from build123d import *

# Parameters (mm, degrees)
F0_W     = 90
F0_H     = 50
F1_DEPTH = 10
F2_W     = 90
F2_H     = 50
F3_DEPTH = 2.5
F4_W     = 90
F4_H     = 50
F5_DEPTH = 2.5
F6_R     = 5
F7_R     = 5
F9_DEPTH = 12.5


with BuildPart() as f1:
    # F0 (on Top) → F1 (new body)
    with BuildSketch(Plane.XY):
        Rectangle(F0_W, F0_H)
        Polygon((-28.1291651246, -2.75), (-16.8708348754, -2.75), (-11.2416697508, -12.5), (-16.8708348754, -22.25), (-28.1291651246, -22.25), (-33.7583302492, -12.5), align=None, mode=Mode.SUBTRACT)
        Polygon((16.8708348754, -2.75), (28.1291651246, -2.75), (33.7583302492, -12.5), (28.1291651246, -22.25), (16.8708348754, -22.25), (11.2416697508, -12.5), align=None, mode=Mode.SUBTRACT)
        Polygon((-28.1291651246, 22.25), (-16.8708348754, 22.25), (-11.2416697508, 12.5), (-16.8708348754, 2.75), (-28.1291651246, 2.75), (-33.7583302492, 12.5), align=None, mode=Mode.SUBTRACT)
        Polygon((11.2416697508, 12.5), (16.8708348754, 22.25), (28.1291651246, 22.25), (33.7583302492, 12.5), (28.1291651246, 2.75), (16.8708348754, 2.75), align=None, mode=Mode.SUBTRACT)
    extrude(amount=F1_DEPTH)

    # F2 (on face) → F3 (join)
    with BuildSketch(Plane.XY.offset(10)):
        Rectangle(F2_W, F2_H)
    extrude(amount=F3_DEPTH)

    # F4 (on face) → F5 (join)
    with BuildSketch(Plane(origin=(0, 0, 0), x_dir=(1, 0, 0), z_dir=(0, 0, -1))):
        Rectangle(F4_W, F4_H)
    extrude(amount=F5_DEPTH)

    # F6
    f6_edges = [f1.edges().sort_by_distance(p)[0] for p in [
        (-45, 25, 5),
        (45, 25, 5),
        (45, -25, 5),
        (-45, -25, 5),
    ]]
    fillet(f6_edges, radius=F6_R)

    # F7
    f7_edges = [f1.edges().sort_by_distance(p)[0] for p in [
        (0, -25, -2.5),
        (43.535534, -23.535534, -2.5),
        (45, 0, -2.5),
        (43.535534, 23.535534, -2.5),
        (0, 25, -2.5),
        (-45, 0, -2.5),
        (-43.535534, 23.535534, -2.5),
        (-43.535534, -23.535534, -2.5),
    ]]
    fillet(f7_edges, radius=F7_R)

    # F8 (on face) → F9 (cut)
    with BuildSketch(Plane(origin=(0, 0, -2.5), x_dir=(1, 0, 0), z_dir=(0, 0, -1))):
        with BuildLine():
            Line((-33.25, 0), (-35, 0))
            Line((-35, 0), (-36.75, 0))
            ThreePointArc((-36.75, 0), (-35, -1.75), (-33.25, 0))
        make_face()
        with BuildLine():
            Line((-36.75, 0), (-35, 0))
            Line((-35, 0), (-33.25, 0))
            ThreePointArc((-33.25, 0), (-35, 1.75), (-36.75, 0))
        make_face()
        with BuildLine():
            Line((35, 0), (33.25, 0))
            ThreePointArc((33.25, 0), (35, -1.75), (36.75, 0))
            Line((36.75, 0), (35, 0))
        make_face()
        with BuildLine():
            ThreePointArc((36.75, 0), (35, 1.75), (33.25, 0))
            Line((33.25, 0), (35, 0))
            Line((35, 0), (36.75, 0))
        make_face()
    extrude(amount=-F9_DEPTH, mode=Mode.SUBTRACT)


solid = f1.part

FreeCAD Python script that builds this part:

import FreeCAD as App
import Part
import Sketcher
Q = App.Units.Quantity


def edges_at(feature, points):
    """Names of the edges that pass closest to the given points."""
    edges = feature.Shape.Edges
    near = lambda p: min(range(len(edges)), key=lambda i: edges[i].distToShape(Part.Vertex(*p))[0])
    return sorted({f"Edge{near(p) + 1}" for p in points})


def add_polygon(sketch, points):
    """Adds a closed chain of lines whose ends are joined by coincident constraints."""
    first, n = sketch.GeometryCount, len(points)
    for a, b in zip(points, points[1:] + points[:1]):
        sketch.addGeometry(Part.LineSegment(App.Vector(*a, 0), App.Vector(*b, 0)), False)
    for i in range(n):
        sketch.addConstraint(Sketcher.Constraint("Coincident", first + i, 2, first + (i + 1) % n, 1))

doc = App.newDocument("Part")
params = doc.addObject("Spreadsheet::Sheet", "Params")
for row, (alias, value) in enumerate([
    ("sketch1_width", "90 mm"),
    ("sketch1_height", "50 mm"),
    ("pad1_length", "10 mm"),
    ("sketch2_width", "90 mm"),
    ("sketch2_height", "50 mm"),
    ("pad2_length", "2.5 mm"),
    ("sketch3_width", "90 mm"),
    ("sketch3_height", "50 mm"),
    ("pad3_length", "2.5 mm"),
    ("fillet_radius", "5 mm"),
    ("fillet2_radius", "5 mm"),
    ("sketch4_diameter", "3.5 mm"),
    ("pocket1_length", "12.5 mm"),
], start=1):
    params.set(f"A{row}", alias)
    params.set(f"B{row}", "=" + value)
    params.setAlias(f"B{row}", alias)

body = doc.addObject("PartDesign::Body", "Body")

# Sketch on XY plane
sketch1 = body.newObject("Sketcher::SketchObject", "Sketch")
sketch1.AttachmentSupport = (doc.getObject("XY_Plane"), [""])
sketch1.MapMode = "FlatFace"
add_polygon(sketch1, [(-45, 25), (-45, -25), (45, -25), (45, 25)])  # lines 0-3
add_polygon(sketch1, [(-34, -12), (-28, -3), (-17, -3), (-11, -12), (-17, -22), (-28, -22)])  # lines 4-9
add_polygon(sketch1, [(11, -12), (17, -3), (28, -3), (34, -12), (28, -22), (17, -22)])  # lines 10-15
add_polygon(sketch1, [(-34, 12), (-28, 22), (-17, 22), (-11, 12), (-17, 3), (-28, 3)])  # lines 16-21
add_polygon(sketch1, [(17, 3), (11, 12), (17, 22), (28, 22), (34, 12), (28, 3)])  # lines 22-27
sketch1.addConstraint(Sketcher.Constraint("Vertical", 0))
sketch1.addConstraint(Sketcher.Constraint("Horizontal", 1))
sketch1.addConstraint(Sketcher.Constraint("Vertical", 2))
sketch1.addConstraint(Sketcher.Constraint("Horizontal", 3))
sketch1.addConstraint(Sketcher.Constraint("Horizontal", 5))
sketch1.addConstraint(Sketcher.Constraint("Horizontal", 8))
sketch1.addConstraint(Sketcher.Constraint("Horizontal", 11))
sketch1.addConstraint(Sketcher.Constraint("Horizontal", 14))
sketch1.addConstraint(Sketcher.Constraint("Horizontal", 17))
sketch1.addConstraint(Sketcher.Constraint("Horizontal", 20))
sketch1.addConstraint(Sketcher.Constraint("Horizontal", 24))
sketch1.addConstraint(Sketcher.Constraint("Horizontal", 27))
sketch1.addConstraint(Sketcher.Constraint("Symmetric", 0, 2, 2, 2, -1, 1))
sketch1.addConstraint(Sketcher.Constraint("Symmetric", 13, 2, 16, 2, -1, 1))
sketch1.addConstraint(Sketcher.Constraint("Symmetric", 15, 2, 18, 2, -1, 1))
sketch1.addConstraint(Sketcher.Constraint("Symmetric", 10, 2, 19, 2, -1, 1))
sketch1.addConstraint(Sketcher.Constraint("Symmetric", 12, 2, 21, 2, -1, 1))
sketch1.addConstraint(Sketcher.Constraint("Symmetric", 6, 2, 22, 2, -1, 1))
sketch1.addConstraint(Sketcher.Constraint("Symmetric", 7, 2, 23, 2, -1, 1))
sketch1.addConstraint(Sketcher.Constraint("Symmetric", 9, 2, 25, 2, -1, 1))
sketch1.addConstraint(Sketcher.Constraint("Symmetric", 4, 2, 26, 2, -1, 1))
sketch1.addConstraint(Sketcher.Constraint("Symmetric", 5, 2, 10, 2, -2))
sketch1.addConstraint(Sketcher.Constraint("Symmetric", 9, 2, 12, 2, -2))
sketch1.addConstraint(Sketcher.Constraint("Symmetric", 8, 2, 13, 2, -2))
sketch1.addConstraint(Sketcher.Constraint("Symmetric", 6, 2, 15, 2, -2))
sketch1.addConstraint(Sketcher.Constraint("Parallel", 4, 7))
sketch1.addConstraint(Sketcher.Constraint("Parallel", 6, 9))
sketch1.addConstraint(Sketcher.Constraint("Parallel", 7, 10))
sketch1.addConstraint(Sketcher.Constraint("Parallel", 9, 12))
sketch1.addConstraint(Sketcher.Constraint("Parallel", 12, 15))
sketch1.addConstraint(Sketcher.Constraint("Parallel", 15, 18))
sketch1.addConstraint(Sketcher.Constraint("Parallel", 18, 21))
sketch1.addConstraint(Sketcher.Constraint("Parallel", 21, 22))
sketch1.addConstraint(Sketcher.Constraint("Parallel", 22, 25))
sketch1.addConstraint(Sketcher.Constraint("Horizontal", 6, 2, 9, 2))
sketch1.addConstraint(Sketcher.Constraint("Vertical", 5, 2, 7, 2))
sketch1.addConstraint(Sketcher.Constraint("DistanceX", 1, 1, 1, 2, Q("90 mm")))
sketch1.addConstraint(Sketcher.Constraint("DistanceY", 0, 2, 0, 1, Q("50 mm")))
sketch1.addConstraint(Sketcher.Constraint("Angle", 4, Q("60 deg")))
sketch1.addConstraint(Sketcher.Constraint("DistanceX", 5, 2, 11, 2, Q("45 mm")))
sketch1.addConstraint(Sketcher.Constraint("DistanceY", 4, 2, 16, 2, Q("25 mm")))
sketch1.addConstraint(Sketcher.Constraint("DistanceY", 7, 2, 5, 2, Q("19.5 mm")))
sketch1.addConstraint(Sketcher.Constraint("DistanceX", 5, 1, 5, 2, Q("11.25833 mm")))
sketch1.setExpression("Constraints[64]", "Params.sketch1_width")
sketch1.setExpression("Constraints[65]", "Params.sketch1_height")
pad1 = body.newObject("PartDesign::Pad", "Pad")
pad1.Profile = sketch1
pad1.setExpression("Length", "Params.pad1_length")

# Sketch on XY plane
sketch2 = body.newObject("Sketcher::SketchObject", "Sketch001")
sketch2.AttachmentSupport = (doc.getObject("XY_Plane"), [""])
sketch2.MapMode = "FlatFace"
sketch2.AttachmentOffset = App.Placement(App.Vector(0, 0, 10), App.Rotation())
add_polygon(sketch2, [(-45, 25), (-45, -25), (45, -25), (45, 25)])  # lines 0-3
sketch2.addConstraint(Sketcher.Constraint("Vertical", 0))
sketch2.addConstraint(Sketcher.Constraint("Horizontal", 1))
sketch2.addConstraint(Sketcher.Constraint("Vertical", 2))
sketch2.addConstraint(Sketcher.Constraint("Horizontal", 3))
sketch2.addConstraint(Sketcher.Constraint("Symmetric", 0, 2, 2, 2, -1, 1))
sketch2.addConstraint(Sketcher.Constraint("DistanceX", 1, 1, 1, 2, Q("90 mm")))
sketch2.addConstraint(Sketcher.Constraint("DistanceY", 0, 2, 0, 1, Q("50 mm")))
sketch2.setExpression("Constraints[9]", "Params.sketch2_width")
sketch2.setExpression("Constraints[10]", "Params.sketch2_height")
pad2 = body.newObject("PartDesign::Pad", "Pad001")
pad2.Profile = sketch2
pad2.setExpression("Length", "Params.pad2_length")

# Sketch on XY plane
sketch3 = body.newObject("Sketcher::SketchObject", "Sketch002")
sketch3.AttachmentSupport = (doc.getObject("XY_Plane"), [""])
sketch3.MapMode = "FlatFace"
add_polygon(sketch3, [(-45, -25), (-45, 25), (45, 25), (45, -25)])  # lines 0-3
sketch3.addConstraint(Sketcher.Constraint("Vertical", 0))
sketch3.addConstraint(Sketcher.Constraint("Horizontal", 1))
sketch3.addConstraint(Sketcher.Constraint("Vertical", 2))
sketch3.addConstraint(Sketcher.Constraint("Horizontal", 3))
sketch3.addConstraint(Sketcher.Constraint("Symmetric", 0, 2, 2, 2, -1, 1))
sketch3.addConstraint(Sketcher.Constraint("DistanceX", 1, 1, 1, 2, Q("90 mm")))
sketch3.addConstraint(Sketcher.Constraint("DistanceY", 0, 1, 0, 2, Q("50 mm")))
sketch3.setExpression("Constraints[9]", "Params.sketch3_width")
sketch3.setExpression("Constraints[10]", "Params.sketch3_height")
pad3 = body.newObject("PartDesign::Pad", "Pad002")
pad3.Profile = sketch3
pad3.setExpression("Length", "Params.pad3_length")
pad3.Reversed = True
doc.recompute()

fillet = body.newObject("PartDesign::Fillet", "Fillet")
fillet.Base = (pad3, edges_at(pad3, [
    (-45, 25, 5),
    (45, 25, 5),
    (45, -25, 5),
    (-45, -25, 5),
]))
fillet.setExpression("Radius", "Params.fillet_radius")
doc.recompute()

fillet2 = body.newObject("PartDesign::Fillet", "Fillet001")
fillet2.Base = (fillet, edges_at(fillet, [
    (0, -25, -2.5),
    (43.536, -23.536, -2.5),
    (45, 0, -2.5),
    (43.536, 23.536, -2.5),
    (0, 25, -2.5),
    (-45, 0, -2.5),
    (-43.536, 23.536, -2.5),
    (-43.536, -23.536, -2.5),
]))
fillet2.setExpression("Radius", "Params.fillet2_radius")

# Sketch on XY plane
sketch4 = body.newObject("Sketcher::SketchObject", "Sketch003")
sketch4.AttachmentSupport = (doc.getObject("XY_Plane"), [""])
sketch4.MapMode = "FlatFace"
sketch4.AttachmentOffset = App.Placement(App.Vector(0, 0, -2.5), App.Rotation())
sketch4.addGeometry(Part.Circle(App.Vector(-35, 0, 0), App.Vector(0, 0, 1), 1.8), False)
sketch4.addGeometry(Part.Circle(App.Vector(35, 0, 0), App.Vector(0, 0, 1), 1.8), False)
sketch4.addConstraint(Sketcher.Constraint("Equal", 0, 1))
sketch4.addConstraint(Sketcher.Constraint("Symmetric", 0, 3, 1, 3, -1, 1))
sketch4.addConstraint(Sketcher.Constraint("PointOnObject", 0, 3, -1))
sketch4.addConstraint(Sketcher.Constraint("Diameter", 0, Q("3.5 mm")))
sketch4.addConstraint(Sketcher.Constraint("DistanceX", 0, 3, -1, 1, Q("35 mm")))
sketch4.setExpression("Constraints[3]", "Params.sketch4_diameter")
pocket1 = body.newObject("PartDesign::Pocket", "Pocket")
pocket1.Profile = sketch4
pocket1.setExpression("Length", "Params.pocket1_length")
pocket1.Reversed = True

doc.recompute()
